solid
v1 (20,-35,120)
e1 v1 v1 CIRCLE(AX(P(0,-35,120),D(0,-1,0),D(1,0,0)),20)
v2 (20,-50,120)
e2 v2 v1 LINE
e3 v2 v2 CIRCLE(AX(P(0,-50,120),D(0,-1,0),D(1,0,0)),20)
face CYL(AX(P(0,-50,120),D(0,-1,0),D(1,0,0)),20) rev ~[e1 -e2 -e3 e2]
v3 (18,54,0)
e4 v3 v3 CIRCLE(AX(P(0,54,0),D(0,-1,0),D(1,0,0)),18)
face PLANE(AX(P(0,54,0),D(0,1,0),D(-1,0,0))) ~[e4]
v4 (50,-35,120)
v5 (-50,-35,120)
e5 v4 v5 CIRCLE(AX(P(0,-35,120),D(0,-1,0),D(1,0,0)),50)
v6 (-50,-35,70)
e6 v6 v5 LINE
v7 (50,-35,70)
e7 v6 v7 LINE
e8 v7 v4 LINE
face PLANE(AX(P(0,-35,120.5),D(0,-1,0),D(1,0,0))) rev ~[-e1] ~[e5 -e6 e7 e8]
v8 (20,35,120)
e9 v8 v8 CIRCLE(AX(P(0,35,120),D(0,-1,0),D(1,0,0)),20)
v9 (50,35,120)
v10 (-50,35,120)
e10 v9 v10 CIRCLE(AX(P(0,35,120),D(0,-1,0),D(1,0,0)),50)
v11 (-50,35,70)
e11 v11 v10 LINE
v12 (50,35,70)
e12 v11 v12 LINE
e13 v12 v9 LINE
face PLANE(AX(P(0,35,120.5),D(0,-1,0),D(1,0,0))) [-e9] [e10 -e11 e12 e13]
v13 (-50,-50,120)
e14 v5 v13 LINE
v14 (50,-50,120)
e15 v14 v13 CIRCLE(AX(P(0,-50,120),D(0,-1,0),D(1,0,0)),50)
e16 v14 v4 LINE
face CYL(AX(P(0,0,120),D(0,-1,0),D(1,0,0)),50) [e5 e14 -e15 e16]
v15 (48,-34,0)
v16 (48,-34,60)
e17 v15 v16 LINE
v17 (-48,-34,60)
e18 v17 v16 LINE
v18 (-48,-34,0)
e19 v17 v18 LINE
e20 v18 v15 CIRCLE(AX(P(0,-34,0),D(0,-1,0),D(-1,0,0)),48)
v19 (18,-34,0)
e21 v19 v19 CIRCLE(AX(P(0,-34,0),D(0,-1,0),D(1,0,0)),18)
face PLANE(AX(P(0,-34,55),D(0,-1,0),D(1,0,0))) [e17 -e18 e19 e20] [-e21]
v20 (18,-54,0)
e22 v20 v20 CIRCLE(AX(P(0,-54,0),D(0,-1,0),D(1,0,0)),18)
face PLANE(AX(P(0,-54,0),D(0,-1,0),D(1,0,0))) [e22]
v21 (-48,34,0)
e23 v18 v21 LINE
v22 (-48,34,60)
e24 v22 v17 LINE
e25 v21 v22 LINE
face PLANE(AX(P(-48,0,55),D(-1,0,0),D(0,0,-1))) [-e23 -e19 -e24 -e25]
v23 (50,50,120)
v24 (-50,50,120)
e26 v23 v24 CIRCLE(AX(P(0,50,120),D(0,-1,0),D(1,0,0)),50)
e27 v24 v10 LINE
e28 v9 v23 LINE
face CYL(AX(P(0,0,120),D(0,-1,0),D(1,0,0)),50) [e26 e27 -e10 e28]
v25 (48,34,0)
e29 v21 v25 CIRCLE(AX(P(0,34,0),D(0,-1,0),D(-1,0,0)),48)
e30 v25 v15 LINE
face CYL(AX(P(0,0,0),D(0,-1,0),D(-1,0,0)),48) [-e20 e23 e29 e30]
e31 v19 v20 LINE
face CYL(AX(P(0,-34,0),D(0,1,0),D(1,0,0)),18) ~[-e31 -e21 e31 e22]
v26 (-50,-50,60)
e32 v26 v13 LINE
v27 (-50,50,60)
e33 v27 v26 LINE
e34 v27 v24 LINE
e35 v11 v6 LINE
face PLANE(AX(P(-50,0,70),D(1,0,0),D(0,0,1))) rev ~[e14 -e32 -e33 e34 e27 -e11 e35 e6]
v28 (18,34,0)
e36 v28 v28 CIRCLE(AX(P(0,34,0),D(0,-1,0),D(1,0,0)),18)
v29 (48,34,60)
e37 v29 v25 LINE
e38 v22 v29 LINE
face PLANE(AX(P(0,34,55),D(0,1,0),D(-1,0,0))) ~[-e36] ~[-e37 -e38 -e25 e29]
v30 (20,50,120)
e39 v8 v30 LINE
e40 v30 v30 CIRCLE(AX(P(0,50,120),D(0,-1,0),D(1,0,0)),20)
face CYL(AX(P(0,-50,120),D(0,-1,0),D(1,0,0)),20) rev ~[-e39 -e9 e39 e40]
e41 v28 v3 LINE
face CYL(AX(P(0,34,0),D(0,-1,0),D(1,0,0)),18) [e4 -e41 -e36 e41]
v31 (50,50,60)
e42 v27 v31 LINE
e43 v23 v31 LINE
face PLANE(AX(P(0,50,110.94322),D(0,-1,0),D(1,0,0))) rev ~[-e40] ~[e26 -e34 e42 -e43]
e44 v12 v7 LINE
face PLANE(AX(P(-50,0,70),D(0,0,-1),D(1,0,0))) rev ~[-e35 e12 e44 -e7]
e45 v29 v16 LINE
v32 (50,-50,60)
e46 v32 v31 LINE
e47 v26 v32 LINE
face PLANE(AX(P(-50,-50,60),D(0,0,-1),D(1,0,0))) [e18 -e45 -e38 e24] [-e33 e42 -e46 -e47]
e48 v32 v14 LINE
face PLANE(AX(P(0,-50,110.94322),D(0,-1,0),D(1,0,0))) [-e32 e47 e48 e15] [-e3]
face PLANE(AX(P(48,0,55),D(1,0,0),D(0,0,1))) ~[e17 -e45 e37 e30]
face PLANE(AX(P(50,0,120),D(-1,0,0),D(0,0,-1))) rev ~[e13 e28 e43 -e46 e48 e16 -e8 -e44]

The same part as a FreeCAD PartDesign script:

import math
import FreeCAD as App
import Part
import Sketcher

doc = App.newDocument("Part")
body = doc.addObject("PartDesign::Body", "Body")

sketch1 = body.newObject("Sketcher::SketchObject", "Sketch")
sketch1.AttachmentSupport = (doc.getObject("XZ_Plane"), [""])
sketch1.MapMode = "FlatFace"
sketch1.addGeometry([
    Part.ArcOfCircle(Part.Circle(App.Vector(0, 0, 0), App.Vector(0, 0, 1), 48), math.radians(180), math.radians(360)),
    Part.LineSegment(App.Vector(48, 0, 0), App.Vector(48, 50, 0)),
    Part.LineSegment(App.Vector(48, 50, 0), App.Vector(-48, 50, 0)),
    Part.LineSegment(App.Vector(-48, 50, 0), App.Vector(-48, 0, 0)),
], False)
sketch1.addConstraint([
    Sketcher.Constraint("Tangent", 0, 2, 1, 1),
    Sketcher.Constraint("Coincident", 1, 2, 2, 1),
    Sketcher.Constraint("Coincident", 2, 2, 3, 1),
    Sketcher.Constraint("Tangent", 3, 2, 0, 1),
    Sketcher.Constraint("Vertical", 1),
    Sketcher.Constraint("Horizontal", 2),
    Sketcher.Constraint("Vertical", 3),
    Sketcher.Constraint("Coincident", 0, 3, -1, 1),
    Sketcher.Constraint("Radius", 0, 48.0),
    Sketcher.Constraint("DistanceY", 1, 1, 1, 2, 50.0),
])
pad1 = body.newObject("PartDesign::Pad", "Pad")
pad1.Profile = sketch1
pad1.Length = 68
pad1.Midplane = True

sketch2 = body.newObject("Sketcher::SketchObject", "Sketch001")
sketch2.AttachmentSupport = (doc.getObject("XZ_Plane"), [""])
sketch2.MapMode = "FlatFace"
sketch2.AttachmentOffset = App.Placement(App.Vector(0, 0, 34), App.Rotation())
sketch2.addGeometry(Part.Circle(App.Vector(0, 0, 0), App.Vector(0, 0, 1), 18), False)
sketch2.addConstraint([
    Sketcher.Constraint("Coincident", 0, 3, -1, 1),
    Sketcher.Constraint("Diameter", 0, 36.0),
])
pad2 = body.newObject("PartDesign::Pad", "Pad001")
pad2.Profile = sketch2
pad2.Length = 20
doc.recompute()

mirrored = body.newObject("PartDesign::Mirrored", "Mirrored")
mirrored.Originals = [pad2]
mirrored.MirrorPlane = (doc.getObject("XZ_Plane"), [""])
body.Tip = mirrored

sketch3 = body.newObject("Sketcher::SketchObject", "Sketch002")
sketch3.AttachmentSupport = (doc.getObject("XY_Plane"), [""])
sketch3.MapMode = "FlatFace"
sketch3.AttachmentOffset = App.Placement(App.Vector(0, 0, 50), App.Rotation())
sketch3.addGeometry([
    Part.LineSegment(App.Vector(50, -50, 0), App.Vector(50, 50, 0)),
    Part.LineSegment(App.Vector(50, 50, 0), App.Vector(-50, 50, 0)),
    Part.LineSegment(App.Vector(-50, 50, 0), App.Vector(-50, -50, 0)),
    Part.LineSegment(App.Vector(-50, -50, 0), App.Vector(50, -50, 0)),
], False)
sketch3.addConstraint([
    Sketcher.Constraint("Coincident", 0, 2, 1, 1),
    Sketcher.Constraint("Coincident", 1, 2, 2, 1),
    Sketcher.Constraint("Coincident", 2, 2, 3, 1),
    Sketcher.Constraint("Coincident", 3, 2, 0, 1),
    Sketcher.Constraint("Vertical", 0),
    Sketcher.Constraint("Horizontal", 1),
    Sketcher.Constraint("Vertical", 2),
    Sketcher.Constraint("Horizontal", 3),
    Sketcher.Constraint("Symmetric", 0, 2, 2, 2, -1, 1),
    Sketcher.Constraint("Equal", 3, 0),
    Sketcher.Constraint("DistanceX", 1, 2, 1, 1, 100.0),
])
pad3 = body.newObject("PartDesign::Pad", "Pad002")
pad3.Profile = sketch3
pad3.Length = 20

sketch4 = body.newObject("Sketcher::SketchObject", "Sketch003")
sketch4.AttachmentSupport = (doc.getObject("XZ_Plane"), [""])
sketch4.MapMode = "FlatFace"
sketch4.addGeometry([
    Part.ArcOfCircle(Part.Circle(App.Vector(0, 120, 0), App.Vector(0, 0, 1), 50), math.radians(0), math.radians(180)),
    Part.LineSegment(App.Vector(-50, 120, 0), App.Vector(-50, 70, 0)),
    Part.LineSegment(App.Vector(-50, 70, 0), App.Vector(50, 70, 0)),
    Part.LineSegment(App.Vector(50, 70, 0), App.Vector(50, 120, 0)),
], False)
sketch4.addConstraint([
    Sketcher.Constraint("Tangent", 0, 2, 1, 1),
    Sketcher.Constraint("Coincident", 1, 2, 2, 1),
    Sketcher.Constraint("Coincident", 2, 2, 3, 1),
    Sketcher.Constraint("Tangent", 3, 2, 0, 1),
    Sketcher.Constraint("Vertical", 1),
    Sketcher.Constraint("Horizontal", 2),
    Sketcher.Constraint("Vertical", 3),
    Sketcher.Constraint("PointOnObject", 0, 3, -2),
    Sketcher.Constraint("Radius", 0, 50.0),
    Sketcher.Constraint("DistanceY", 1, 2, 1, 1, 50.0),
    Sketcher.Constraint("DistanceY", -1, 1, 0, 3, 120.0),
])
pad4 = body.newObject("PartDesign::Pad", "Pad003")
pad4.Profile = sketch4
pad4.Length = 100
pad4.Midplane = True

sketch5 = body.newObject("Sketcher::SketchObject", "Sketch004")
sketch5.AttachmentSupport = (doc.getObject("XZ_Plane"), [""])
sketch5.MapMode = "FlatFace"
sketch5.AttachmentOffset = App.Placement(App.Vector(0, 0, 50), App.Rotation())
sketch5.addGeometry(Part.Circle(App.Vector(0, 120, 0), App.Vector(0, 0, 1), 20), False)
sketch5.addConstraint([
    Sketcher.Constraint("PointOnObject", 0, 3, -2),
    Sketcher.Constraint("Diameter", 0, 40.0),
    Sketcher.Constraint("DistanceY", -1, 1, 0, 3, 120.0),
])
pocket1 = body.newObject("PartDesign::Pocket", "Pocket")
pocket1.Profile = sketch5
pocket1.Length = 100

sketch6 = body.newObject("Sketcher::SketchObject", "Sketch005")
sketch6.AttachmentSupport = (doc.getObject("XZ_Plane"), [""])
sketch6.MapMode = "FlatFace"
sketch6.addGeometry([
    Part.LineSegment(App.Vector(-50, 171, 0), App.Vector(-50, 70, 0)),
    Part.LineSegment(App.Vector(-50, 70, 0), App.Vector(50, 70, 0)),
    Part.LineSegment(App.Vector(50, 70, 0), App.Vector(50, 171, 0)),
    Part.LineSegment(App.Vector(50, 171, 0), App.Vector(-50, 171, 0)),
], False)
sketch6.addConstraint([
    Sketcher.Constraint("Coincident", 0, 2, 1, 1),
    Sketcher.Constraint("Coincident", 1, 2, 2, 1),
    Sketcher.Constraint("Coincident", 2, 2, 3, 1),
    Sketcher.Constraint("Coincident", 3, 2, 0, 1),
    Sketcher.Constraint("Vertical", 0),
    Sketcher.Constraint("Horizontal", 1),
    Sketcher.Constraint("Vertical", 2),
    Sketcher.Constraint("Horizontal", 3),
    Sketcher.Constraint("DistanceX", 1, 1, 1, 2, 100.0),
    Sketcher.Constraint("DistanceY", 0, 2, 0, 1, 101.0),
    Sketcher.Constraint("DistanceX", 0, 2, -1, 1, 50.0),
    Sketcher.Constraint("DistanceY", -1, 1, 0, 2, 70.0),
])
pocket2 = body.newObject("PartDesign::Pocket", "Pocket001")
pocket2.Profile = sketch6
pocket2.Length = 70
pocket2.Midplane = True

sketch7 = body.newObject("Sketcher::SketchObject", "Sketch006")
sketch7.AttachmentSupport = (doc.getObject("XZ_Plane"), [""])
sketch7.MapMode = "FlatFace"
sketch7.AttachmentOffset = App.Placement(App.Vector(0, 0, 50), App.Rotation())
sketch7.addGeometry([
    Part.LineSegment(App.Vector(-50, 60, 0), App.Vector(-50, 50, 0)),
    Part.LineSegment(App.Vector(-50, 50, 0), App.Vector(50, 50, 0)),
    Part.LineSegment(App.Vector(50, 50, 0), App.Vector(50, 60, 0)),
    Part.LineSegment(App.Vector(50, 60, 0), App.Vector(-50, 60, 0)),
], False)
sketch7.addConstraint([
    Sketcher.Constraint("Coincident", 0, 2, 1, 1),
    Sketcher.Constraint("Coincident", 1, 2, 2, 1),
    Sketcher.Constraint("Coincident", 2, 2, 3, 1),
    Sketcher.Constraint("Coincident", 3, 2, 0, 1),
    Sketcher.Constraint("Vertical", 0),
    Sketcher.Constraint("Horizontal", 1),
    Sketcher.Constraint("Vertical", 2),
    Sketcher.Constraint("Horizontal", 3),
    Sketcher.Constraint("DistanceX", 1, 1, 1, 2, 100.0),
    Sketcher.Constraint("DistanceY", 0, 2, 0, 1, 10.0),
    Sketcher.Constraint("DistanceX", 0, 2, -1, 1, 50.0),
    Sketcher.Constraint("DistanceY", -1, 1, 0, 2, 50.0),
])
pocket3 = body.newObject("PartDesign::Pocket", "Pocket002")
pocket3.Profile = sketch7
pocket3.Length = 16
doc.recompute()

mirrored2 = body.newObject("PartDesign::Mirrored", "Mirrored001")
mirrored2.Originals = [pocket3]
mirrored2.MirrorPlane = (doc.getObject("XZ_Plane"), [""])
body.Tip = mirrored2

sketch8 = body.newObject("Sketcher::SketchObject", "Sketch007")
sketch8.AttachmentSupport = (doc.getObject("YZ_Plane"), [""])
sketch8.MapMode = "FlatFace"
sketch8.AttachmentOffset = App.Placement(App.Vector(0, 0, -50), App.Rotation())
sketch8.addGeometry([
    Part.LineSegment(App.Vector(-34, 60, 0), App.Vector(34, 60, 0)),
    Part.LineSegment(App.Vector(34, 60, 0), App.Vector(34, 50, 0)),
    Part.LineSegment(App.Vector(34, 50, 0), App.Vector(-34, 50, 0)),
    Part.LineSegment(App.Vector(-34, 50, 0), App.Vector(-34, 60, 0)),
], False)
sketch8.addConstraint([
    Sketcher.Constraint("Coincident", 0, 2, 1, 1),
    Sketcher.Constraint("Coincident", 1, 2, 2, 1),
    Sketcher.Constraint("Coincident", 2, 2, 3, 1),
    Sketcher.Constraint("Coincident", 3, 2, 0, 1),
    Sketcher.Constraint("Horizontal", 0),
    Sketcher.Constraint("Vertical", 1),
    Sketcher.Constraint("Horizontal", 2),
    Sketcher.Constraint("Vertical", 3),
    Sketcher.Constraint("DistanceX", 0, 1, 0, 2, 68.0),
    Sketcher.Constraint("DistanceY", 1, 2, 1, 1, 10.0),
    Sketcher.Constraint("DistanceX", -1, 1, 0, 2, 34.0),
    Sketcher.Constraint("DistanceY", -1, 1, 0, 2, 60.0),
])
pocket4 = body.newObject("PartDesign::Pocket", "Pocket003")
pocket4.Profile = sketch8
pocket4.Length = 2
pocket4.Reversed = True
doc.recompute()

mirrored3 = body.newObject("PartDesign::Mirrored", "Mirrored002")
mirrored3.Originals = [pocket4]
mirrored3.MirrorPlane = (doc.getObject("YZ_Plane"), [""])
body.Tip = mirrored3

doc.recompute()
